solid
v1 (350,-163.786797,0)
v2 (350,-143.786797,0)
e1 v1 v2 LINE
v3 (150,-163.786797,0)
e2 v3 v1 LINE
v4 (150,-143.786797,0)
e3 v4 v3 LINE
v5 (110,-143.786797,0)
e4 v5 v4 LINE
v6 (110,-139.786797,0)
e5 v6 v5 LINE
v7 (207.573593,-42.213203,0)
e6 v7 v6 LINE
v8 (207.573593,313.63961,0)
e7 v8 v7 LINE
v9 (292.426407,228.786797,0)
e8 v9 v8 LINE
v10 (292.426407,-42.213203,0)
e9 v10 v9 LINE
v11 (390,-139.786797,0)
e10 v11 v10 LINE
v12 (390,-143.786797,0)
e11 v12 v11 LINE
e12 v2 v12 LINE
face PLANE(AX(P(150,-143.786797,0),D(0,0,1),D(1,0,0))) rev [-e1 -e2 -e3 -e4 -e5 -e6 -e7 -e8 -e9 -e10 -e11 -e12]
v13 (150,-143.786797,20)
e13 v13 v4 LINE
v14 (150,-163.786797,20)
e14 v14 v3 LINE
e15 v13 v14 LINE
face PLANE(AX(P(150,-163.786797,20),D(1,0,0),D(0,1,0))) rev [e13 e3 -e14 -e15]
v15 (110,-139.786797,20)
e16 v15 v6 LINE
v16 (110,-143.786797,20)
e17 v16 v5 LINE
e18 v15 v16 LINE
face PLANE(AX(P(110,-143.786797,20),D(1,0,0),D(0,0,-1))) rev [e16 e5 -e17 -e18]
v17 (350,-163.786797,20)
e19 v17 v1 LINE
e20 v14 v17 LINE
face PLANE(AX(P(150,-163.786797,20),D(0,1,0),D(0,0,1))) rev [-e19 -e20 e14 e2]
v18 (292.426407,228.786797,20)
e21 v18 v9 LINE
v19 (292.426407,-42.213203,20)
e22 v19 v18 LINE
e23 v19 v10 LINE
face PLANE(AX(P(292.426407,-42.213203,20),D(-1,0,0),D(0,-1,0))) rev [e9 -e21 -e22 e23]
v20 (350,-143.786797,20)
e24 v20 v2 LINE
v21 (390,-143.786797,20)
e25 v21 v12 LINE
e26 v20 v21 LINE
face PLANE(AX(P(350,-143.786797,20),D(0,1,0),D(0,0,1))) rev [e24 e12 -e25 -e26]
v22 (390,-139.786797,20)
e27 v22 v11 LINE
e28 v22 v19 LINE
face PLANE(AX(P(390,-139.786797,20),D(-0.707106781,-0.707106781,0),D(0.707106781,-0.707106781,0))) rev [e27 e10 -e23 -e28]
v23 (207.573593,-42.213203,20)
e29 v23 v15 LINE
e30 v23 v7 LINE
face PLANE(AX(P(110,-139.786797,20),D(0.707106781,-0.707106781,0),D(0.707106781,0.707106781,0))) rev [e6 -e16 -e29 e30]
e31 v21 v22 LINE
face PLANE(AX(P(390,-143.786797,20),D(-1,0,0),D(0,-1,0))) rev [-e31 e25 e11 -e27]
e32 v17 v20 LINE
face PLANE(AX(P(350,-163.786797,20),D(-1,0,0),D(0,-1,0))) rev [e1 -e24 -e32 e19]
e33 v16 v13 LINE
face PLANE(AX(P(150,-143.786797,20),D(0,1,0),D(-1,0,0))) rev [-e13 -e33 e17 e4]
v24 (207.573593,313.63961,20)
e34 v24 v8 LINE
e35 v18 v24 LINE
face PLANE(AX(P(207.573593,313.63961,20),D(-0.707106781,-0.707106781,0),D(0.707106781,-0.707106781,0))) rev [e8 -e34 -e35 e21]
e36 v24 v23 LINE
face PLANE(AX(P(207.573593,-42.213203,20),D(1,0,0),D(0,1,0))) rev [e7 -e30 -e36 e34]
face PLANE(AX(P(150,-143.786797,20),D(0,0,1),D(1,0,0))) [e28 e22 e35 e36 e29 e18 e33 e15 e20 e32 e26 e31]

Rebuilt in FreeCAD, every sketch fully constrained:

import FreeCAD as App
import Part
import Sketcher

V = App.Vector
Q = App.Units.Quantity


def add_polygon(sketch, points):
    """Adds a closed chain of lines whose ends are joined by coincident constraints."""
    first, n = sketch.GeometryCount, len(points)
    for a, b in zip(points, points[1:] + points[:1]):
        sketch.addGeometry(Part.LineSegment(App.Vector(*a, 0), App.Vector(*b, 0)), False)
    for i in range(n):
        sketch.addConstraint(Sketcher.Constraint("Coincident", first + i, 2, first + (i + 1) % n, 1))

doc = App.newDocument("Part")
body = doc.addObject("PartDesign::Body", "Body")

# Sketch on XY plane
sketch1 = body.newObject("Sketcher::SketchObject", "Sketch")
sketch1.AttachmentSupport = (doc.getObject("XY_Plane"), [""])
sketch1.MapMode = "FlatFace"
add_polygon(sketch1, [(150, -163.8), (350, -163.8), (350, -143.8), (390, -143.8), (390, -139.8), (292.4, -42.2), (292.4, 228.8), (207.6, 313.6), (207.6, -42.2), (110, -139.8), (110, -143.8), (150, -143.8)])  # lines 0-11
sketch1.addConstraint([
    Sketcher.Constraint("Horizontal", 0),
    Sketcher.Constraint("Vertical", 1),
    Sketcher.Constraint("Horizontal", 2),
    Sketcher.Constraint("Vertical", 3),
    Sketcher.Constraint("Vertical", 5),
    Sketcher.Constraint("Vertical", 7),
    Sketcher.Constraint("Vertical", 9),
    Sketcher.Constraint("Horizontal", 10),
    Sketcher.Constraint("Vertical", 11),
    Sketcher.Constraint("Parallel", 4, 6),
    Sketcher.Constraint("Perpendicular", 6, 8),
    Sketcher.Constraint("Horizontal", 4, 2, 7, 2),
    Sketcher.Constraint("Horizontal", 3, 2, 8, 2),
    Sketcher.Constraint("Horizontal", 2, 2, 9, 2),
    Sketcher.Constraint("Equal", 2, 10),
    Sketcher.Constraint("Equal", 4, 8),
    Sketcher.Constraint("DistanceX", 0, 1, 0, 2, Q("200 mm")),
    Sketcher.Constraint("DistanceX", 2, 1, 2, 2, Q("40 mm")),
    Sketcher.Constraint("DistanceY", 1, 1, 1, 2, Q("20 mm")),
    Sketcher.Constraint("DistanceY", 3, 1, 3, 2, Q("4 mm")),
    Sketcher.Constraint("DistanceY", 5, 1, 5, 2, Q("271 mm")),
    Sketcher.Constraint("Distance", 6, Q("120 mm")),
    Sketcher.Constraint("DistanceX", -1, 1, 0, 2, Q("350 mm")),
    Sketcher.Constraint("DistanceY", -1, 1, 6, 2, Q("313.63961 mm")),
])
pad1 = body.newObject("PartDesign::Pad", "Pad")
pad1.Profile = sketch1
pad1.Length = 20

doc.recompute()
